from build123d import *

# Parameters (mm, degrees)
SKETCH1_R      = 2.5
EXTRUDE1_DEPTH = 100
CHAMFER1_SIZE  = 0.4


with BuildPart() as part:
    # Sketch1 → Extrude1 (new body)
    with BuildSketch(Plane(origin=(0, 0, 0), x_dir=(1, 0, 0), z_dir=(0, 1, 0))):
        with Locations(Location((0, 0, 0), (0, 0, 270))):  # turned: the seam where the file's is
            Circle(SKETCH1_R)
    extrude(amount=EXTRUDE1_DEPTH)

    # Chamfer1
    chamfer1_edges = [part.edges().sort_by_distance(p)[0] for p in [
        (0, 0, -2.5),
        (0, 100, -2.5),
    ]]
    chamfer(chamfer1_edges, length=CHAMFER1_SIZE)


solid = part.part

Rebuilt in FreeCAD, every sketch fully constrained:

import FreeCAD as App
import Part
import Sketcher

V = App.Vector
Q = App.Units.Quantity


def edges_at(feature, points):
    """Names of the edges that pass closest to the given points."""
    edges = feature.Shape.Edges
    near = lambda p: min(range(len(edges)), key=lambda i: edges[i].distToShape(Part.Vertex(*p))[0])
    return sorted({f"Edge{near(p) + 1}" for p in points})

doc = App.newDocument("Part")
body = doc.addObject("PartDesign::Body", "Body")

sketch1 = body.newObject("Sketcher::SketchObject", "Sketch")
sketch1.AttachmentSupport = (doc.getObject("XZ_Plane"), [""])
sketch1.MapMode = "FlatFace"
sketch1.addGeometry(Part.Circle(V(0, 0, 0), V(0, 0, 1), 2.5), False)
sketch1.addConstraint([
    Sketcher.Constraint("Coincident", 0, 3, -1, 1),
    Sketcher.Constraint("Diameter", 0, Q("5 mm")),
])
pad1 = body.newObject("PartDesign::Pad", "Pad")
pad1.Profile = sketch1
pad1.Length = 100
pad1.Reversed = True
doc.recompute()

chamfer = body.newObject("PartDesign::Chamfer", "Chamfer")
chamfer.Base = (pad1, edges_at(pad1, [(0, 0, -2.5), (0, 100, -2.5)]))
chamfer.Size = 0.4

doc.recompute()
